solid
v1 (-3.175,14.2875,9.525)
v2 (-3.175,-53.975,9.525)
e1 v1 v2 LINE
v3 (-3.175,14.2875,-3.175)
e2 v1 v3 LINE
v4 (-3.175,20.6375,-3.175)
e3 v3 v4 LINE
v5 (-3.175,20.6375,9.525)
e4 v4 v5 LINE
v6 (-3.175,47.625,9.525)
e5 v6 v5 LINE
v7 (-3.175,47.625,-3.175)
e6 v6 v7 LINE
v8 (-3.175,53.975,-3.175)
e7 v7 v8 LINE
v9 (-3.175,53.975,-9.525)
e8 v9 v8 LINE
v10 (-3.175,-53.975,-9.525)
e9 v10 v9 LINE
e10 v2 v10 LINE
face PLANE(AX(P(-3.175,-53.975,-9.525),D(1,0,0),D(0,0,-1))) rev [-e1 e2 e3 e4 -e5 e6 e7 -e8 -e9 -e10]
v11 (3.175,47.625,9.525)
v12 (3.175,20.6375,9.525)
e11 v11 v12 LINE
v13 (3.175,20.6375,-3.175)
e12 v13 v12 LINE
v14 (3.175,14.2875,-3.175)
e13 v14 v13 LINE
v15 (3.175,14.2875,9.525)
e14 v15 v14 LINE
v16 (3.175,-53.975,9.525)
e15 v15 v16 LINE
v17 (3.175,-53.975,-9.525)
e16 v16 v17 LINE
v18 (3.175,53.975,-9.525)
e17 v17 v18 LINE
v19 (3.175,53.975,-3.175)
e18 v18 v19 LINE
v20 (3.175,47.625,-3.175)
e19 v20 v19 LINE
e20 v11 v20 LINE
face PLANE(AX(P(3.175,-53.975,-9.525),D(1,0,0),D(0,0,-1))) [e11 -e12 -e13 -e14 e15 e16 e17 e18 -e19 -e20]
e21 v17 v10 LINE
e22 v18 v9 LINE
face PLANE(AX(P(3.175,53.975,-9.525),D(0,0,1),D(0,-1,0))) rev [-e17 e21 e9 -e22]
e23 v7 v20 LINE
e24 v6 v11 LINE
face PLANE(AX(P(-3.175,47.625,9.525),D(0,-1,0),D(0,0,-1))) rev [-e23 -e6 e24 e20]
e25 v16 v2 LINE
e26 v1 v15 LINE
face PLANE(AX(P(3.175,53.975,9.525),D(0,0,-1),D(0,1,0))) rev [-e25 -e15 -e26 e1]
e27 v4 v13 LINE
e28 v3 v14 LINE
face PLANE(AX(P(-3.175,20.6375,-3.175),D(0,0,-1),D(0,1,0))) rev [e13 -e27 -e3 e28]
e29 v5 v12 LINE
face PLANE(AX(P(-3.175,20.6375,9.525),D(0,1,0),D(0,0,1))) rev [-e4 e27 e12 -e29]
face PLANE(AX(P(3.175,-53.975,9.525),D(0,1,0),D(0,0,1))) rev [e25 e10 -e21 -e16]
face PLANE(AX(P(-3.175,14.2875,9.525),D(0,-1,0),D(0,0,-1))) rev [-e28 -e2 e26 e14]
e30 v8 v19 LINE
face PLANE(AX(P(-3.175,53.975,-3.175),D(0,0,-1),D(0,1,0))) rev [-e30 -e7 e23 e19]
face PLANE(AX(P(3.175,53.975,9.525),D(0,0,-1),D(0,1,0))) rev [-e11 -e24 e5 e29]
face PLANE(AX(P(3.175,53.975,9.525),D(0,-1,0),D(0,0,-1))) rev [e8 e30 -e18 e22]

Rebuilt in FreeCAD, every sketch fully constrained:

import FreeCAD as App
import Part
import Sketcher
Q = App.Units.Quantity


def add_polygon(sketch, points):
    """Adds a closed chain of lines whose ends are joined by coincident constraints."""
    first, n = sketch.GeometryCount, len(points)
    for a, b in zip(points, points[1:] + points[:1]):
        sketch.addGeometry(Part.LineSegment(App.Vector(*a, 0), App.Vector(*b, 0)), False)
    for i in range(n):
        sketch.addConstraint(Sketcher.Constraint("Coincident", first + i, 2, first + (i + 1) % n, 1))

doc = App.newDocument("Part")
body = doc.addObject("PartDesign::Body", "Body")

sketch1 = body.newObject("Sketcher::SketchObject", "Sketch")
sketch1.AttachmentSupport = (doc.getObject("YZ_Plane"), [""])
sketch1.MapMode = "FlatFace"
add_polygon(sketch1, [(54, 10), (-54, 10), (-54, -10), (54, -10)])
sketch1.addConstraint([
    Sketcher.Constraint("Horizontal", 0),
    Sketcher.Constraint("Vertical", 1),
    Sketcher.Constraint("Horizontal", 2),
    Sketcher.Constraint("Vertical", 3),
    Sketcher.Constraint("Symmetric", 0, 2, 2, 2, -1, 1),
    Sketcher.Constraint("DistanceX", 0, 2, 0, 1, Q("4.25 in")),
    Sketcher.Constraint("DistanceY", 1, 2, 1, 1, Q("0.75 in")),
])
pad1 = body.newObject("PartDesign::Pad", "Pad")
pad1.Profile = sketch1
pad1.Length = Q("0.25 in")
pad1.Midplane = True

sketch2 = body.newObject("Sketcher::SketchObject", "Sketch001")
sketch2.AttachmentSupport = (doc.getObject("YZ_Plane"), [""])
sketch2.MapMode = "FlatFace"
sketch2.AttachmentOffset = App.Placement(App.Vector(0, 0, 0.125 * 25.4), App.Rotation())
add_polygon(sketch2, [(54, 10), (48, 10), (48, -3), (54, -3)])
add_polygon(sketch2, [(21, 10), (14, 10), (14, -3), (21, -3)])
sketch2.addConstraint([
    Sketcher.Constraint("Horizontal", 0),
    Sketcher.Constraint("Vertical", 1),
    Sketcher.Constraint("Horizontal", 2),
    Sketcher.Constraint("Vertical", 3),
    Sketcher.Constraint("Horizontal", 4),
    Sketcher.Constraint("Vertical", 5),
    Sketcher.Constraint("Horizontal", 6),
    Sketcher.Constraint("Vertical", 7),
    Sketcher.Constraint("Horizontal", 3, 2, 4, 2),
    Sketcher.Constraint("Horizontal", 2, 2, 5, 2),
    Sketcher.Constraint("Equal", 2, 4),
    Sketcher.Constraint("DistanceY", 1, 2, 1, 1, Q("0.5 in")),
    Sketcher.Constraint("DistanceX", 0, 2, 0, 1, Q("0.25 in")),
    Sketcher.Constraint("DistanceX", -1, 1, 0, 2, Q("1.875 in")),
    Sketcher.Constraint("DistanceY", -1, 1, 0, 2, Q("0.375 in")),
    Sketcher.Constraint("DistanceX", -1, 1, 4, 2, Q("0.5625 in")),
])
pocket1 = body.newObject("PartDesign::Pocket", "Pocket")
pocket1.Profile = sketch2
pocket1.Type = "ThroughAll"

doc.recompute()
